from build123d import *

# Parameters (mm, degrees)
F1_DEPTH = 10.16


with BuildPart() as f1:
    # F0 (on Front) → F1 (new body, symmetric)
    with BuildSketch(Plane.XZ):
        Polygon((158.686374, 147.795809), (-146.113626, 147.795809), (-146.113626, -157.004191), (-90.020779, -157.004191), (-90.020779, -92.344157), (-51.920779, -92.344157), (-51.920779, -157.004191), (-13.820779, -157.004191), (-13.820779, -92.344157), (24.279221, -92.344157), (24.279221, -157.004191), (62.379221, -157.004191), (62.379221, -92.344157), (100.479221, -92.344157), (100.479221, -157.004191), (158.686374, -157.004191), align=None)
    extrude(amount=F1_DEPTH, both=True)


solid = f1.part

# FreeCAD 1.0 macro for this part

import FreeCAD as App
import Part
import Sketcher
from FreeCAD import Vector
Q = App.Units.Quantity


def add_polygon(sketch, points):
    """Adds a closed chain of lines whose ends are joined by coincident constraints."""
    first, n = sketch.GeometryCount, len(points)
    for a, b in zip(points, points[1:] + points[:1]):
        sketch.addGeometry(Part.LineSegment(App.Vector(*a, 0), App.Vector(*b, 0)), False)
    for i in range(n):
        sketch.addConstraint(Sketcher.Constraint("Coincident", first + i, 2, first + (i + 1) % n, 1))

doc = App.newDocument("Part")
body = doc.addObject("PartDesign::Body", "Body")

# Sketch on XZ plane
sketch1 = body.newObject("Sketcher::SketchObject", "Sketch")
sketch1.AttachmentSupport = (doc.getObject("XZ_Plane"), [""])
sketch1.MapMode = "FlatFace"
add_polygon(sketch1, [(159, 148), (-146, 148), (-146, -157), (-90, -157), (-90, -92), (-52, -92), (-52, -157), (-14, -157), (-14, -92), (24, -92), (24, -157), (62, -157), (62, -92), (100, -92), (100, -157), (159, -157)])  # lines 0-15
sketch1.addConstraint(Sketcher.Constraint("Horizontal", 0))
sketch1.addConstraint(Sketcher.Constraint("Vertical", 1))
sketch1.addConstraint(Sketcher.Constraint("Horizontal", 2))
sketch1.addConstraint(Sketcher.Constraint("Vertical", 3))
sketch1.addConstraint(Sketcher.Constraint("Horizontal", 4))
sketch1.addConstraint(Sketcher.Constraint("Vertical", 5))
sketch1.addConstraint(Sketcher.Constraint("Horizontal", 6))
sketch1.addConstraint(Sketcher.Constraint("Vertical", 7))
sketch1.addConstraint(Sketcher.Constraint("Horizontal", 8))
sketch1.addConstraint(Sketcher.Constraint("Vertical", 9))
sketch1.addConstraint(Sketcher.Constraint("Horizontal", 10))
sketch1.addConstraint(Sketcher.Constraint("Vertical", 11))
sketch1.addConstraint(Sketcher.Constraint("Horizontal", 12))
sketch1.addConstraint(Sketcher.Constraint("Vertical", 13))
sketch1.addConstraint(Sketcher.Constraint("Horizontal", 14))
sketch1.addConstraint(Sketcher.Constraint("Vertical", 15))
sketch1.addConstraint(Sketcher.Constraint("Horizontal", 2, 2, 5, 2))
sketch1.addConstraint(Sketcher.Constraint("Horizontal", 4, 2, 7, 2))
sketch1.addConstraint(Sketcher.Constraint("Horizontal", 6, 2, 9, 2))
sketch1.addConstraint(Sketcher.Constraint("Horizontal", 8, 2, 11, 2))
sketch1.addConstraint(Sketcher.Constraint("Horizontal", 10, 2, 13, 2))
sketch1.addConstraint(Sketcher.Constraint("Equal", 4, 6))
sketch1.addConstraint(Sketcher.Constraint("Equal", 6, 8))
sketch1.addConstraint(Sketcher.Constraint("Equal", 8, 10))
sketch1.addConstraint(Sketcher.Constraint("Equal", 10, 12))
sketch1.addConstraint(Sketcher.Constraint("Equal", 0, 1))
sketch1.addConstraint(Sketcher.Constraint("DistanceX", 0, 2, 0, 1, Q("12 in")))
sketch1.addConstraint(Sketcher.Constraint("DistanceX", 4, 1, 4, 2, Q("1.5 in")))
sketch1.addConstraint(Sketcher.Constraint("DistanceX", 2, 1, 2, 2, 56.092847))
sketch1.addConstraint(Sketcher.Constraint("DistanceY", 3, 1, 3, 2, 64.660034))
sketch1.addConstraint(Sketcher.Constraint("DistanceY", -1, 1, 0, 2, 147.795809))
sketch1.addConstraint(Sketcher.Constraint("DistanceX", 2, 2, -1, 1, 90.020779))
pad1 = body.newObject("PartDesign::Pad", "Pad")
pad1.Profile = sketch1
pad1.Length = Q("0.8 in")
pad1.Midplane = True

doc.recompute()
